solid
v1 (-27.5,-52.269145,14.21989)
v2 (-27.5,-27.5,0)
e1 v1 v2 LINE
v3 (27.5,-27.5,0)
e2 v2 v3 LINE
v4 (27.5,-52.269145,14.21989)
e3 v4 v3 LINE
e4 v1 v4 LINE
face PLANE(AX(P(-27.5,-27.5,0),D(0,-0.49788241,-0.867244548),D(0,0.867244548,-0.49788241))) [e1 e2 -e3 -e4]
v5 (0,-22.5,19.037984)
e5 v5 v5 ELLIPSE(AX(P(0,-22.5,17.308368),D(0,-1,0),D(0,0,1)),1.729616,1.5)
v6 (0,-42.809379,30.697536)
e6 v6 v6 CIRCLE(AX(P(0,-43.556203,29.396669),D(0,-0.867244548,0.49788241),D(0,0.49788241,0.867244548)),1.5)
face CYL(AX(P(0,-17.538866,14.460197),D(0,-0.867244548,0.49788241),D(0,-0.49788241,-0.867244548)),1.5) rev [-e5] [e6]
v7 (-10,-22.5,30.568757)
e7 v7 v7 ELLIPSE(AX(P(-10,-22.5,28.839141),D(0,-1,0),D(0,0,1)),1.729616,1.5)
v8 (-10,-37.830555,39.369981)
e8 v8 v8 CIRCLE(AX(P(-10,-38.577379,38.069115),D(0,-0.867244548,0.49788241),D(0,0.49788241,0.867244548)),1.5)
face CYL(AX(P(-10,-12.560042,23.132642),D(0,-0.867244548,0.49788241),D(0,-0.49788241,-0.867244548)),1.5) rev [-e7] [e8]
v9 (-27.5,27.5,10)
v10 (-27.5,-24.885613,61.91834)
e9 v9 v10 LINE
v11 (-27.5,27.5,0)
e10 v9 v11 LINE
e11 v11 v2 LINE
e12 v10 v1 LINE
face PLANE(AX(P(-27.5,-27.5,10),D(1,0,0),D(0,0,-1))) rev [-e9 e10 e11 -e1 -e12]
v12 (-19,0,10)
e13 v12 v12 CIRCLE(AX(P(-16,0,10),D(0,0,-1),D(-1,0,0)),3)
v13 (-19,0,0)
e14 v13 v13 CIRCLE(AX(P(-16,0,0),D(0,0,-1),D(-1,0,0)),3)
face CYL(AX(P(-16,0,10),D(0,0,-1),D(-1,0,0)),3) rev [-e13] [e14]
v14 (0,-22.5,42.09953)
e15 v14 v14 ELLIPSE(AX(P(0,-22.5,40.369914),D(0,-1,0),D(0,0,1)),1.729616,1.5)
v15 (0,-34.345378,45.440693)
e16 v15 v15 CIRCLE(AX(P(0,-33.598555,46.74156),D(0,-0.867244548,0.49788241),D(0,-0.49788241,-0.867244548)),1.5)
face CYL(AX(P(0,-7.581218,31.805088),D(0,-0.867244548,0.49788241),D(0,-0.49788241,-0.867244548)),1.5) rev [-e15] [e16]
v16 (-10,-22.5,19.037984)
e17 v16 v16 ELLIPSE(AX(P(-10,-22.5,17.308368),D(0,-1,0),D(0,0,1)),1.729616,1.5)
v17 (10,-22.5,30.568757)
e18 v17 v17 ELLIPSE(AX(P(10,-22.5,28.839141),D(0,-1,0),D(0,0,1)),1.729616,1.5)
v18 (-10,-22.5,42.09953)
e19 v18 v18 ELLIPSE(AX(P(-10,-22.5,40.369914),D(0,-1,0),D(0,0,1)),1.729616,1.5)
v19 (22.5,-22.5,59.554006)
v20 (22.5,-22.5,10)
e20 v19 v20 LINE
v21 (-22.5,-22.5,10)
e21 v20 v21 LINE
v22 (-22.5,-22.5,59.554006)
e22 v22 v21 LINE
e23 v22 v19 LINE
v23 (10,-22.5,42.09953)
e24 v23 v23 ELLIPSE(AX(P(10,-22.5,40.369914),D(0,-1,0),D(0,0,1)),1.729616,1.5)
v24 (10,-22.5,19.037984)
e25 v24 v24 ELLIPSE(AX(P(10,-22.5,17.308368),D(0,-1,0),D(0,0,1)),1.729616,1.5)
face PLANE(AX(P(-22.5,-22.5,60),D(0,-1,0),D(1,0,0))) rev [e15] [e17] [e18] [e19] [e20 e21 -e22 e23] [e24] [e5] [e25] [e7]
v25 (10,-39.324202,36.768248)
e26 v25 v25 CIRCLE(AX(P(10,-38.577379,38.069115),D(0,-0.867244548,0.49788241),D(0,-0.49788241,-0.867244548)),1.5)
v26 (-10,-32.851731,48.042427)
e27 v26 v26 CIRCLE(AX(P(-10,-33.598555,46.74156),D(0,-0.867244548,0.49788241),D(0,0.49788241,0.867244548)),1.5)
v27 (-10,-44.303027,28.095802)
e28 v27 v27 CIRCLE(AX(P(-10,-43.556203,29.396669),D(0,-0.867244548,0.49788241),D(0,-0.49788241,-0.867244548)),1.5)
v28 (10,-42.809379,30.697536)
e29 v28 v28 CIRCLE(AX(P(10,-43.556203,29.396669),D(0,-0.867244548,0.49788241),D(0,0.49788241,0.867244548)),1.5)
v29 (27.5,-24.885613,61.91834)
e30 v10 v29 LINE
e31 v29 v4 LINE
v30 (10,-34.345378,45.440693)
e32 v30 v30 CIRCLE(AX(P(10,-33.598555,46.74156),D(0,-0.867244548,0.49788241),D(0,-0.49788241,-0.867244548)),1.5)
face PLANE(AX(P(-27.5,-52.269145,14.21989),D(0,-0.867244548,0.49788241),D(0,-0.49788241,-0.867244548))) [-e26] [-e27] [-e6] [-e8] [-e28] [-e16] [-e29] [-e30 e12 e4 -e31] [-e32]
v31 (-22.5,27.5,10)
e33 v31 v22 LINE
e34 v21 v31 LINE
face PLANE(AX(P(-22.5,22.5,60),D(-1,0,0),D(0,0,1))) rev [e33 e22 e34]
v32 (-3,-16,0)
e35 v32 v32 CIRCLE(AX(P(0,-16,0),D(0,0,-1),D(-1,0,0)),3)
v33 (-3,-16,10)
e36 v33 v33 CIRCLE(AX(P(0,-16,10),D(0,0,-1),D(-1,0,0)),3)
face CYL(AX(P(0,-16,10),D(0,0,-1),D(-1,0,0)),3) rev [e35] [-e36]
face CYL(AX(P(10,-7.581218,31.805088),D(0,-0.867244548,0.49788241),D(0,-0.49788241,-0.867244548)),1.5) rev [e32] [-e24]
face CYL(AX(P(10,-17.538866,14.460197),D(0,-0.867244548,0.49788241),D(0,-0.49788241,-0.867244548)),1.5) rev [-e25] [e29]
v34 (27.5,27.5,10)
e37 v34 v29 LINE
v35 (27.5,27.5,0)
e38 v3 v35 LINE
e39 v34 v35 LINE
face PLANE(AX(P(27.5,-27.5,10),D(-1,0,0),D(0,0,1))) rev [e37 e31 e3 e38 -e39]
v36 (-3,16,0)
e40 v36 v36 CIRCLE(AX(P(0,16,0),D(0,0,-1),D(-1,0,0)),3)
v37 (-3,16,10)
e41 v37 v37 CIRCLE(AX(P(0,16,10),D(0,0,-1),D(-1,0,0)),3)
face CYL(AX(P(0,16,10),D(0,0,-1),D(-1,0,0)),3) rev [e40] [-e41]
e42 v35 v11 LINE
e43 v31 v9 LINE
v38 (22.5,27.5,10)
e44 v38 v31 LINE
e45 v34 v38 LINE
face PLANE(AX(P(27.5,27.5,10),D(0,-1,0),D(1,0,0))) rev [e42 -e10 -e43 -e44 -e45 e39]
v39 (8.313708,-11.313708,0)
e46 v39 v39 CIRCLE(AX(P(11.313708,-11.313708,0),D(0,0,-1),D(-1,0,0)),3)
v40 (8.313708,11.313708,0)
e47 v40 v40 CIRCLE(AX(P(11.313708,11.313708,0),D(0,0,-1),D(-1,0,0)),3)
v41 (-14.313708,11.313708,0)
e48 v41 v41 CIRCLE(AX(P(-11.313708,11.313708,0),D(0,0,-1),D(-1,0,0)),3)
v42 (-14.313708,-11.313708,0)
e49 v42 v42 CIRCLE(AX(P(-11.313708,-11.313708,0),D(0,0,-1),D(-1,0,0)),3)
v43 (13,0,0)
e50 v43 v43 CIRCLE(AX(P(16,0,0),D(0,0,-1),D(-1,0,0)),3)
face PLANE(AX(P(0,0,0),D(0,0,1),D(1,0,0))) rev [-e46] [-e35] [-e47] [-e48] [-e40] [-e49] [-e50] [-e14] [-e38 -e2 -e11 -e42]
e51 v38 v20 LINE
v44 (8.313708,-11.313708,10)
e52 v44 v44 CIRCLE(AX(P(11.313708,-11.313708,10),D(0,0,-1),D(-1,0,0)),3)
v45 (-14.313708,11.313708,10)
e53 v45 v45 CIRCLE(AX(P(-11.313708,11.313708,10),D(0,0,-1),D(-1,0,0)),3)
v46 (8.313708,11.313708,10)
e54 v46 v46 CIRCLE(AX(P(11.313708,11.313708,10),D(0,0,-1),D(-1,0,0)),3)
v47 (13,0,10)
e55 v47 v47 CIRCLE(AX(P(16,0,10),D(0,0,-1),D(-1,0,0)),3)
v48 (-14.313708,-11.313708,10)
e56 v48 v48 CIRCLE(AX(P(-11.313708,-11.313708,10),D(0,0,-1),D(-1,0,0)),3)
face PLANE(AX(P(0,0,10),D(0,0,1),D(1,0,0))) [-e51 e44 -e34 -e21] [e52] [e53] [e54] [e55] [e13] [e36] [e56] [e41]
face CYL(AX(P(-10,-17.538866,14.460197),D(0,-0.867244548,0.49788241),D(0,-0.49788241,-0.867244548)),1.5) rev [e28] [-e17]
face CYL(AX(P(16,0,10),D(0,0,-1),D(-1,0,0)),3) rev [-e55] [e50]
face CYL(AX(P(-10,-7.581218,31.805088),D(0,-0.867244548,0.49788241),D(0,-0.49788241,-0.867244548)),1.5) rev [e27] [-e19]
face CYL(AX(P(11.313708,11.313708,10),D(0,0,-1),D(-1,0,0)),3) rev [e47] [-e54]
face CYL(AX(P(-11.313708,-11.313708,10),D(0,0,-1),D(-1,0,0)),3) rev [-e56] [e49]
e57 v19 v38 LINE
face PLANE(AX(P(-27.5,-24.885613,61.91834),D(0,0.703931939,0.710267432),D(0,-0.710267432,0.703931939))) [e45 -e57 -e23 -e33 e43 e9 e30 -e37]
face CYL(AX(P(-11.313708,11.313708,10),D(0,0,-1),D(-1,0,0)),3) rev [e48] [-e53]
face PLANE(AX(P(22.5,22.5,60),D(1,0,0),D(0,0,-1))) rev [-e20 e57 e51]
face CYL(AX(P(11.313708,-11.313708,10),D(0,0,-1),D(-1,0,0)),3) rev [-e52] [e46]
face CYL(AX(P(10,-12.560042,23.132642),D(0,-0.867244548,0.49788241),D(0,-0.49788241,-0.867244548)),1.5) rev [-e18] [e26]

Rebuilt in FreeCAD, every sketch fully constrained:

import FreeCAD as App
import Part
import Sketcher
Q = App.Units.Quantity


def add_polygon(sketch, points):
    """Adds a closed chain of lines whose ends are joined by coincident constraints."""
    first, n = sketch.GeometryCount, len(points)
    for a, b in zip(points, points[1:] + points[:1]):
        sketch.addGeometry(Part.LineSegment(App.Vector(*a, 0), App.Vector(*b, 0)), False)
    for i in range(n):
        sketch.addConstraint(Sketcher.Constraint("Coincident", first + i, 2, first + (i + 1) % n, 1))

doc = App.newDocument("Part")
params = doc.addObject("Spreadsheet::Sheet", "Params")
for row, (alias, value) in enumerate([
    ("sketch1_width", "55 mm"),
    ("pad1_length", "10 mm"),
    ("sketch2_length", "55 mm"),
    ("pad2_length", "55 mm"),
    ("sketch3_width", "45 mm"),
    ("pocket1_length", "50 mm"),
    ("sketch4_diameter", "6 mm"),
    ("pocket2_length", "10 mm"),
    ("sketch5_diameter", "3 mm"),
    ("pocket3_length", "30 mm"),
], start=1):
    params.set(f"A{row}", alias)
    params.set(f"B{row}", "=" + value)
    params.setAlias(f"B{row}", alias)

body = doc.addObject("PartDesign::Body", "Body")

sketch1 = body.newObject("Sketcher::SketchObject", "Sketch")
sketch1.AttachmentSupport = (doc.getObject("XY_Plane"), [""])
sketch1.MapMode = "FlatFace"
add_polygon(sketch1, [(-27.5, 27.5), (-27.5, -27.5), (27.5, -27.5), (27.5, 27.5)])
sketch1.addConstraint(Sketcher.Constraint("Vertical", 0))
sketch1.addConstraint(Sketcher.Constraint("Horizontal", 1))
sketch1.addConstraint(Sketcher.Constraint("Vertical", 2))
sketch1.addConstraint(Sketcher.Constraint("Horizontal", 3))
sketch1.addConstraint(Sketcher.Constraint("Symmetric", 0, 2, 2, 2, -1, 1))
sketch1.addConstraint(Sketcher.Constraint("Equal", 3, 0))
sketch1.addConstraint(Sketcher.Constraint("DistanceX", 1, 1, 1, 2, 55.0))
sketch1.setExpression("Constraints[10]", "Params.sketch1_width")
pad1 = body.newObject("PartDesign::Pad", "Pad")
pad1.Profile = sketch1
pad1.setExpression("Length", "Params.pad1_length")

sketch2 = body.newObject("Sketcher::SketchObject", "Sketch001")
sketch2.AttachmentSupport = (doc.getObject("YZ_Plane"), [""])
sketch2.MapMode = "FlatFace"
sketch2.AttachmentOffset = App.Placement(App.Vector(0, 0, 27.5), App.Rotation())
add_polygon(sketch2, [(-52.269145, 14.21989), (-27.5, 0), (27.5, 10), (-24.885613, 61.91834)])
sketch2.addConstraint(Sketcher.Constraint("PointOnObject", 0, 2, -1))
sketch2.addConstraint(Sketcher.Constraint("Perpendicular", 0, 3))
sketch2.addConstraint(Sketcher.Constraint("Distance", 3, 55.0))
sketch2.addConstraint(Sketcher.Constraint("DistanceY", -1, 1, 1, 2, 10.0))
sketch2.addConstraint(Sketcher.Constraint("DistanceX", 0, 2, 1, 2, 55.0))
sketch2.addConstraint(Sketcher.Constraint("DistanceX", 0, 2, -1, 1, 27.5))
sketch2.addConstraint(Sketcher.Constraint("Angle", 0, Q("-29.86 deg")))
sketch2.addConstraint(Sketcher.Constraint("Distance", 0, 28.560739))
sketch2.setExpression("Constraints[6]", "Params.sketch2_length")
pad2 = body.newObject("PartDesign::Pad", "Pad001")
pad2.Profile = sketch2
pad2.setExpression("Length", "Params.pad2_length")
pad2.Reversed = True

sketch3 = body.newObject("Sketcher::SketchObject", "Sketch002")
sketch3.AttachmentSupport = (doc.getObject("XY_Plane"), [""])
sketch3.MapMode = "FlatFace"
sketch3.AttachmentOffset = App.Placement(App.Vector(0, 0, 10), App.Rotation())
add_polygon(sketch3, [(-22.5, -22.5), (-22.5, 36.625125), (22.5, 36.625125), (22.5, -22.5)])
sketch3.addConstraint(Sketcher.Constraint("Vertical", 0))
sketch3.addConstraint(Sketcher.Constraint("Horizontal", 1))
sketch3.addConstraint(Sketcher.Constraint("Vertical", 2))
sketch3.addConstraint(Sketcher.Constraint("Horizontal", 3))
sketch3.addConstraint(Sketcher.Constraint("DistanceX", 1, 1, 1, 2, 45.0))
sketch3.addConstraint(Sketcher.Constraint("DistanceX", 0, 2, -1, 1, 22.5))
sketch3.addConstraint(Sketcher.Constraint("DistanceY", 2, 2, -1, 1, 22.5))
sketch3.addConstraint(Sketcher.Constraint("DistanceY", 0, 1, 0, 2, 59.125125))
sketch3.setExpression("Constraints[8]", "Params.sketch3_width")
pocket1 = body.newObject("PartDesign::Pocket", "Pocket")
pocket1.Profile = sketch3
pocket1.setExpression("Length", "Params.pocket1_length")
pocket1.Reversed = True

sketch4 = body.newObject("Sketcher::SketchObject", "Sketch003")
sketch4.AttachmentSupport = (doc.getObject("XY_Plane"), [""])
sketch4.MapMode = "FlatFace"
sketch4.addGeometry(Part.Circle(App.Vector(-16, 0, 0), App.Vector(0, 0, 1), 3), False)
sketch4.addGeometry(Part.Circle(App.Vector(-11.313708, -11.313708, 0), App.Vector(0, 0, 1), 3), False)
sketch4.addGeometry(Part.Circle(App.Vector(0, -16, 0), App.Vector(0, 0, 1), 3), False)
sketch4.addGeometry(Part.Circle(App.Vector(11.313708, -11.313708, 0), App.Vector(0, 0, 1), 3), False)
sketch4.addGeometry(Part.Circle(App.Vector(16, 0, 0), App.Vector(0, 0, 1), 3), False)
sketch4.addGeometry(Part.Circle(App.Vector(11.313708, 11.313708, 0), App.Vector(0, 0, 1), 3), False)
sketch4.addGeometry(Part.Circle(App.Vector(0, 16, 0), App.Vector(0, 0, 1), 3), False)
sketch4.addGeometry(Part.Circle(App.Vector(-11.313708, 11.313708, 0), App.Vector(0, 0, 1), 3), False)
sketch4.addConstraint(Sketcher.Constraint("Equal", 0, 1))
sketch4.addConstraint(Sketcher.Constraint("Equal", 1, 2))
sketch4.addConstraint(Sketcher.Constraint("Equal", 2, 3))
sketch4.addConstraint(Sketcher.Constraint("Equal", 3, 4))
sketch4.addConstraint(Sketcher.Constraint("Equal", 4, 5))
sketch4.addConstraint(Sketcher.Constraint("Equal", 5, 6))
sketch4.addConstraint(Sketcher.Constraint("Equal", 6, 7))
sketch4.addConstraint(Sketcher.Constraint("Symmetric", 0, 3, 4, 3, -1, 1))
sketch4.addConstraint(Sketcher.Constraint("Symmetric", 1, 3, 5, 3, -1, 1))
sketch4.addConstraint(Sketcher.Constraint("Symmetric", 2, 3, 6, 3, -1, 1))
sketch4.addConstraint(Sketcher.Constraint("Symmetric", 3, 3, 7, 3, -1, 1))
sketch4.addConstraint(Sketcher.Constraint("Symmetric", 1, 3, 3, 3, -2))
sketch4.addConstraint(Sketcher.Constraint("PointOnObject", 0, 3, -1))
sketch4.addConstraint(Sketcher.Constraint("PointOnObject", 2, 3, -2))
sketch4.addConstraint(Sketcher.Constraint("Diameter", 0, 6.0))
sketch4.addConstraint(Sketcher.Constraint("DistanceX", 0, 3, -1, 1, 16.0))
sketch4.addConstraint(Sketcher.Constraint("DistanceY", 2, 3, -1, 1, 16.0))
sketch4.addConstraint(Sketcher.Constraint("DistanceX", 1, 3, -1, 1, 11.313708))
sketch4.addConstraint(Sketcher.Constraint("DistanceY", 1, 3, -1, 1, 11.313708))
sketch4.setExpression("Constraints[14]", "Params.sketch4_diameter")
pocket2 = body.newObject("PartDesign::Pocket", "Pocket001")
pocket2.Profile = sketch4
pocket2.setExpression("Length", "Params.pocket2_length")
pocket2.Reversed = True

sketch5 = body.newObject("Sketcher::SketchObject", "Sketch004")
sketch5.Placement = App.Placement(App.Vector(0, -45.452255, 26.093999), App.Rotation(App.Vector(1, 0, 0), App.Vector(0, 0.49788241, 0.867244548), App.Vector(0, -0.867244548, 0.49788241), "ZXY"))
sketch5.addGeometry(Part.Circle(App.Vector(10, 23.808234, 0), App.Vector(0, 0, 1), 1.5), False)
sketch5.addGeometry(Part.Circle(App.Vector(10, 13.808234, 0), App.Vector(0, 0, 1), 1.5), False)
sketch5.addGeometry(Part.Circle(App.Vector(0, 23.808234, 0), App.Vector(0, 0, 1), 1.5), False)
sketch5.addGeometry(Part.Circle(App.Vector(-10, 23.808234, 0), App.Vector(0, 0, 1), 1.5), False)
sketch5.addGeometry(Part.Circle(App.Vector(-10, 13.808234, 0), App.Vector(0, 0, 1), 1.5), False)
sketch5.addGeometry(Part.Circle(App.Vector(-10, 3.808234, 0), App.Vector(0, 0, 1), 1.5), False)
sketch5.addGeometry(Part.Circle(App.Vector(0, 3.808234, 0), App.Vector(0, 0, 1), 1.5), False)
sketch5.addGeometry(Part.Circle(App.Vector(10, 3.808234, 0), App.Vector(0, 0, 1), 1.5), False)
sketch5.addConstraint(Sketcher.Constraint("Equal", 0, 1))
sketch5.addConstraint(Sketcher.Constraint("Equal", 1, 2))
sketch5.addConstraint(Sketcher.Constraint("Equal", 2, 3))
sketch5.addConstraint(Sketcher.Constraint("Equal", 3, 4))
sketch5.addConstraint(Sketcher.Constraint("Equal", 4, 5))
sketch5.addConstraint(Sketcher.Constraint("Equal", 5, 6))
sketch5.addConstraint(Sketcher.Constraint("Equal", 6, 7))
sketch5.addConstraint(Sketcher.Constraint("Symmetric", 0, 3, 3, 3, -2))
sketch5.addConstraint(Sketcher.Constraint("Symmetric", 1, 3, 4, 3, -2))
sketch5.addConstraint(Sketcher.Constraint("Symmetric", 5, 3, 7, 3, -2))
sketch5.addConstraint(Sketcher.Constraint("PointOnObject", 2, 3, -2))
sketch5.addConstraint(Sketcher.Constraint("PointOnObject", 6, 3, -2))
sketch5.addConstraint(Sketcher.Constraint("Horizontal", 0, 3, 2, 3))
sketch5.addConstraint(Sketcher.Constraint("Horizontal", 5, 3, 6, 3))
sketch5.addConstraint(Sketcher.Constraint("Vertical", 0, 3, 1, 3))
sketch5.addConstraint(Sketcher.Constraint("Vertical", 4, 3, 5, 3))
sketch5.addConstraint(Sketcher.Constraint("Diameter", 0, 3.0))
sketch5.addConstraint(Sketcher.Constraint("DistanceX", -1, 1, 0, 3, 10.0))
sketch5.addConstraint(Sketcher.Constraint("DistanceY", 1, 3, 0, 3, 10.0))
sketch5.addConstraint(Sketcher.Constraint("DistanceY", 5, 3, 4, 3, 10.0))
sketch5.addConstraint(Sketcher.Constraint("DistanceY", -1, 1, 0, 3, 23.808234))
sketch5.setExpression("Constraints[16]", "Params.sketch5_diameter")
pocket3 = body.newObject("PartDesign::Pocket", "Pocket002")
pocket3.Profile = sketch5
pocket3.setExpression("Length", "Params.pocket3_length")

doc.recompute()
